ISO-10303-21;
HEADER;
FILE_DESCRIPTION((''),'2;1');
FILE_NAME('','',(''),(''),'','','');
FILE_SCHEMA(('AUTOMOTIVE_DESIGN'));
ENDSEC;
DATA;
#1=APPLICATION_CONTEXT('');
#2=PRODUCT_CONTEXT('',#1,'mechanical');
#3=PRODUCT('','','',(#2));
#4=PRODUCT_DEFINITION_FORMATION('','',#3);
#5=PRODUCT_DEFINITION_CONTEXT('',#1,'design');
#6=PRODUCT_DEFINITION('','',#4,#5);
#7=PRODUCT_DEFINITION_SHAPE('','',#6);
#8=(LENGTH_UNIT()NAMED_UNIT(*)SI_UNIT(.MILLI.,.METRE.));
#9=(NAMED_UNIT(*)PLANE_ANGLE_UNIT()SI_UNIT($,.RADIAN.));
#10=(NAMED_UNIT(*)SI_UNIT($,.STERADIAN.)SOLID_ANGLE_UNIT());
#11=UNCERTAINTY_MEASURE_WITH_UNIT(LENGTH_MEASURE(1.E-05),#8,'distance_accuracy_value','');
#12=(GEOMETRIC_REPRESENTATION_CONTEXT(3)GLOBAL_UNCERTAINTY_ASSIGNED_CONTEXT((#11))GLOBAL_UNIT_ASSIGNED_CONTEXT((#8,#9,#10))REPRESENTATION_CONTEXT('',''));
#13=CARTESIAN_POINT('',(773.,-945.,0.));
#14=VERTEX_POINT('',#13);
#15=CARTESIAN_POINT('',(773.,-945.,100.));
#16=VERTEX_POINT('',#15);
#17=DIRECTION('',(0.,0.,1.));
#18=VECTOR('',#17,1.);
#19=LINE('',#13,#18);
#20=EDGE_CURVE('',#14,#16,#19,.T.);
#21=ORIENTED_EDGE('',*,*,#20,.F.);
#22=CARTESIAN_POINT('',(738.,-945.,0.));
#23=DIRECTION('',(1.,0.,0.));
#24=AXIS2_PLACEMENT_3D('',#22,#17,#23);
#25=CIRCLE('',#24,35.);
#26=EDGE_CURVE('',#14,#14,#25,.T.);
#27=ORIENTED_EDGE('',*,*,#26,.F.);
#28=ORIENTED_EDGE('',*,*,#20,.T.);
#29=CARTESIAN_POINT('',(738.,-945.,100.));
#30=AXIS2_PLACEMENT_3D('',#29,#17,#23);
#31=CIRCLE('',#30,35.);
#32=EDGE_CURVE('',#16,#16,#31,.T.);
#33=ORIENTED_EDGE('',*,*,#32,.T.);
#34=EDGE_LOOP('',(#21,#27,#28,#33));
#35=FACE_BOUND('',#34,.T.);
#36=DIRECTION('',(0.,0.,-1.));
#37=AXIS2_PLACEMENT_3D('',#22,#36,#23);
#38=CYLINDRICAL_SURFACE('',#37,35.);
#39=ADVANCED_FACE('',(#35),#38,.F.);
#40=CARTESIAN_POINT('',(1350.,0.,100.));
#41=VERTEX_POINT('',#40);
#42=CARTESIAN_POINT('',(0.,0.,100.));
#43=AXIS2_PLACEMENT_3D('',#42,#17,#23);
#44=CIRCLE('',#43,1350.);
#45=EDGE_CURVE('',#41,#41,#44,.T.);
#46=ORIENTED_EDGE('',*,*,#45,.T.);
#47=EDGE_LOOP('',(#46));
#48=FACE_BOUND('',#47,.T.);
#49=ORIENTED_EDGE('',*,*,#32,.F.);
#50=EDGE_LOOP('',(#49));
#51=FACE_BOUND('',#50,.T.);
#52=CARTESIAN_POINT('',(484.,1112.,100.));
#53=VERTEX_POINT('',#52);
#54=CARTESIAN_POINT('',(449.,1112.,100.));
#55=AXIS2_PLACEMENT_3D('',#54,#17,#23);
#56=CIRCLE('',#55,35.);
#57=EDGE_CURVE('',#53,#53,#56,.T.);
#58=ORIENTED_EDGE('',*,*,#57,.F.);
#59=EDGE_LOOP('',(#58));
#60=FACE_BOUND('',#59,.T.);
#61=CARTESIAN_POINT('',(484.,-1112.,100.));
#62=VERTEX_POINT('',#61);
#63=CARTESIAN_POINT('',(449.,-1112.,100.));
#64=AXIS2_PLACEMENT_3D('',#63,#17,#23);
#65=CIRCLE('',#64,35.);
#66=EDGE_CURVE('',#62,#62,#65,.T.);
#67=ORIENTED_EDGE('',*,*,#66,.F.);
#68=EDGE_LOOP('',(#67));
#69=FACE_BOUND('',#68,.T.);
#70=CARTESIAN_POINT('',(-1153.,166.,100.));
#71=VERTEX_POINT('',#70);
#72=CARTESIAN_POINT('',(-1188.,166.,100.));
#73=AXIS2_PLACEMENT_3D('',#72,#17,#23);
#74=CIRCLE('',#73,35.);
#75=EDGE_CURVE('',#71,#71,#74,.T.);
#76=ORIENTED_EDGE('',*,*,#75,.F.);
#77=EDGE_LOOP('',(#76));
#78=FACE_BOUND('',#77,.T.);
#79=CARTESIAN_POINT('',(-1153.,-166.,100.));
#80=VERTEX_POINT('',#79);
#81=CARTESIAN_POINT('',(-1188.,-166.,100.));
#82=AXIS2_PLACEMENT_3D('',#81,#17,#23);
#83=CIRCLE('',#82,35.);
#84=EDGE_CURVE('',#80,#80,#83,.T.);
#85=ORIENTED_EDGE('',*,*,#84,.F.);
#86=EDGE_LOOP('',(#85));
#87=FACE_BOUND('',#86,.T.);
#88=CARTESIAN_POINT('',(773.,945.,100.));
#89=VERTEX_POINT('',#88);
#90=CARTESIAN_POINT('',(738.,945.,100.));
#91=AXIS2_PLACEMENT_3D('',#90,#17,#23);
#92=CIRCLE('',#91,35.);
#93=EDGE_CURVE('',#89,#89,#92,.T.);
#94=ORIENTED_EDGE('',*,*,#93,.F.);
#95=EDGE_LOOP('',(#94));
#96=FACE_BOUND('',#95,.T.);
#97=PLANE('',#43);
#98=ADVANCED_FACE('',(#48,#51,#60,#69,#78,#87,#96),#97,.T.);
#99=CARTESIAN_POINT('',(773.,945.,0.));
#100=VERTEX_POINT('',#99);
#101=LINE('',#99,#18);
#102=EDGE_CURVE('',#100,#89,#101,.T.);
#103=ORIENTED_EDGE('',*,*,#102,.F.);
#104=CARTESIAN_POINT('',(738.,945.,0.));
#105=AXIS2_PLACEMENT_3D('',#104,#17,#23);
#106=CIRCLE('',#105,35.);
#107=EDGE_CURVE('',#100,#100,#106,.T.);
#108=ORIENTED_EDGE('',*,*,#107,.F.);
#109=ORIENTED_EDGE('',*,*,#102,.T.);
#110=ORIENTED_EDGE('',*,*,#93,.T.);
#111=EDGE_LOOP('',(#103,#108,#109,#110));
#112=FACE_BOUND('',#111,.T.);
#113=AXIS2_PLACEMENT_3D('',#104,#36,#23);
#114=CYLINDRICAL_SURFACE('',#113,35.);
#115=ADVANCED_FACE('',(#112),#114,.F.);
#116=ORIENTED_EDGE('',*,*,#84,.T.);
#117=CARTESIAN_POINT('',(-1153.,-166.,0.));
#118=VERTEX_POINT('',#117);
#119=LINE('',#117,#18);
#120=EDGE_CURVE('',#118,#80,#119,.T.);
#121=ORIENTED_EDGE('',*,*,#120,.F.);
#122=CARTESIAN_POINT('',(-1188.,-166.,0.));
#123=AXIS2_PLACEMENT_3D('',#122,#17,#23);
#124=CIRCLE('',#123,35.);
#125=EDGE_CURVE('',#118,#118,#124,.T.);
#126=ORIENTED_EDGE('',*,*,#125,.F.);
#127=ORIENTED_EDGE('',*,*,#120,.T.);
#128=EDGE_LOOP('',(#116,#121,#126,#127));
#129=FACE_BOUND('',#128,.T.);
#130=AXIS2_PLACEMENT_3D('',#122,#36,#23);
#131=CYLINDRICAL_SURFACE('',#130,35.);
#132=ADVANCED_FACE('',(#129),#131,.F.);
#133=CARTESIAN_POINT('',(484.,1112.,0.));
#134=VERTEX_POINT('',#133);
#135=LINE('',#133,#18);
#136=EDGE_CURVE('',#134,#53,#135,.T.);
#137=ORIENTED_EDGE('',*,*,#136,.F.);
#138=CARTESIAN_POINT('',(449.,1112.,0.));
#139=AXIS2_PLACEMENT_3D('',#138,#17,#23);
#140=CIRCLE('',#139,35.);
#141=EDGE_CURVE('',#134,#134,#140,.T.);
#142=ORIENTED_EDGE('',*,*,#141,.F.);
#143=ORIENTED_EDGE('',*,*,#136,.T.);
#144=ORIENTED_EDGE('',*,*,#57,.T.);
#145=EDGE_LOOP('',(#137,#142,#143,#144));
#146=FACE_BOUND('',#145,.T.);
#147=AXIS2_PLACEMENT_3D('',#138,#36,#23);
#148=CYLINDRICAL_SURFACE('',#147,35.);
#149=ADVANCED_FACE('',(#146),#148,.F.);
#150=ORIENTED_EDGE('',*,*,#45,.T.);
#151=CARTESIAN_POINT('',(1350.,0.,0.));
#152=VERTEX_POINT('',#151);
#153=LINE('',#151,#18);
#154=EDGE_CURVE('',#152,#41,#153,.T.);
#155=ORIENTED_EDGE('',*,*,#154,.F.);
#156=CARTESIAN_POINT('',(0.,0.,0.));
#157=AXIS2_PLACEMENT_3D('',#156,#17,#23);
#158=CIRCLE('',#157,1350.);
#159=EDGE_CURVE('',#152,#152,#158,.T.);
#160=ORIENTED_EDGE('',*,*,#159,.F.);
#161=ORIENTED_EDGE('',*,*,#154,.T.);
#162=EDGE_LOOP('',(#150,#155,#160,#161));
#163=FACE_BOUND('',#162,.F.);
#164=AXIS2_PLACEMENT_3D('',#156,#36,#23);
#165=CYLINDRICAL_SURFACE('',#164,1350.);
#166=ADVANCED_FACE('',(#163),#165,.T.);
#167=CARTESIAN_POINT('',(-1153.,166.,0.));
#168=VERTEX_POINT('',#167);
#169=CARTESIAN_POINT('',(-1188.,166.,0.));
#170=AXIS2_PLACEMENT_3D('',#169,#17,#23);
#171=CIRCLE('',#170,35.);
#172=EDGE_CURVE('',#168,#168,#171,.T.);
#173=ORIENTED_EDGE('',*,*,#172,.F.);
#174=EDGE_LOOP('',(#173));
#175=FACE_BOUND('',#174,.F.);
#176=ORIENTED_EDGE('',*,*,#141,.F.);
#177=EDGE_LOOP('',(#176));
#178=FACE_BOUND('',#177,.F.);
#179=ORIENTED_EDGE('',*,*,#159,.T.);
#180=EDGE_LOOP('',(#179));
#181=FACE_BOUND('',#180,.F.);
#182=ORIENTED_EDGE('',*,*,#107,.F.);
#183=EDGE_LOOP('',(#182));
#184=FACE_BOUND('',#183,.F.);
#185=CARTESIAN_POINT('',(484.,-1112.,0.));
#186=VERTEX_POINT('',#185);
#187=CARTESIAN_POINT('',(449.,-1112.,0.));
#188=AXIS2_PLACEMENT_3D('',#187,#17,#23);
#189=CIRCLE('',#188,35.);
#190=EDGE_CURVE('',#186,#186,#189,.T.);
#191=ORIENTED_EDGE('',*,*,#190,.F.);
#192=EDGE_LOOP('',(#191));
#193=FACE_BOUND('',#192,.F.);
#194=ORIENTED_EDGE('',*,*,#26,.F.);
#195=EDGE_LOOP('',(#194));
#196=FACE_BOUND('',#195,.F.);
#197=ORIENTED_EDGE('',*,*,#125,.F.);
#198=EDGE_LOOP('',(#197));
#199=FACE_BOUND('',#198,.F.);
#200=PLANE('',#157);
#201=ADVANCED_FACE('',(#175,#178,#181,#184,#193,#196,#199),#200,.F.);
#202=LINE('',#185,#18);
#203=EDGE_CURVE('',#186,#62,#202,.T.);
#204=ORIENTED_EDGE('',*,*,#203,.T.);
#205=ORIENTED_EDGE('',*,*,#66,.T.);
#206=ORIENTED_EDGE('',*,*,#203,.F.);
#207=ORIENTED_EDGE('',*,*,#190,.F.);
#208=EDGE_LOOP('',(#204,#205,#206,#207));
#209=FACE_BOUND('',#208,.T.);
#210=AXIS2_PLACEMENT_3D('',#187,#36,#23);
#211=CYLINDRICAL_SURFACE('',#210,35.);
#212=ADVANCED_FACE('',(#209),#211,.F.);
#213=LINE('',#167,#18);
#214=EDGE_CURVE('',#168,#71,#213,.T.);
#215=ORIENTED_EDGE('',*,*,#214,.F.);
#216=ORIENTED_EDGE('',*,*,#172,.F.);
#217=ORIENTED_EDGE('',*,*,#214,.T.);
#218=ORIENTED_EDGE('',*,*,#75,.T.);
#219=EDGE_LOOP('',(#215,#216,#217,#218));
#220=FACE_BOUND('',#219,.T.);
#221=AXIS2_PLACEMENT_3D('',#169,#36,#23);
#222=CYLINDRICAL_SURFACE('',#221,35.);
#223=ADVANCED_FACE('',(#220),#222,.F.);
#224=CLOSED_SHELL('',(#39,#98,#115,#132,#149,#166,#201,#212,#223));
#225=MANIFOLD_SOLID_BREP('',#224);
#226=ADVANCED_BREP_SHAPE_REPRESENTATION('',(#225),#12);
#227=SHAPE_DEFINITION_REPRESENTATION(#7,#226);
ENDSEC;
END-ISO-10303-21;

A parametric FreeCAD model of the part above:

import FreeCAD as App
import Part
import Sketcher

V = App.Vector

doc = App.newDocument("Part")
params = doc.addObject("Spreadsheet::Sheet", "Params")
for row, (alias, value) in enumerate([
    ("sketch1_diameter", "2700 mm"),
    ("sketch1_diameter2", "70 mm"),
    ("pad1_length", "100 mm"),
], start=1):
    params.set(f"A{row}", alias)
    params.set(f"B{row}", "=" + value)
    params.setAlias(f"B{row}", alias)

body = doc.addObject("PartDesign::Body", "Body")

# Sketch on XY plane
sketch1 = doc.addObject("Sketcher::SketchObject", "Sketch")
body.addObject(sketch1)
sketch1.AttachmentSupport = (doc.XY_Plane, [""])
sketch1.MapMode = "FlatFace"
sketch1.addGeometry([
    Part.Circle(V(0, 0, 0), V(0, 0, 1), 1350),  # 0
    Part.Circle(V(-1188, -166, 0), V(0, 0, 1), 35),  # 1
    Part.Circle(V(449, -1112, 0), V(0, 0, 1), 35),  # 2
    Part.Circle(V(738, -945, 0), V(0, 0, 1), 35),  # 3
    Part.Circle(V(-1188, 166, 0), V(0, 0, 1), 35),  # 4
    Part.Circle(V(449, 1112, 0), V(0, 0, 1), 35),  # 5
    Part.Circle(V(738, 945, 0), V(0, 0, 1), 35),  # 6
], False)
sketch1.addConstraint([
    Sketcher.Constraint("Coincident", 0, 3, -1, 1),
    Sketcher.Constraint("Equal", 1, 2),
    Sketcher.Constraint("Equal", 2, 3),
    Sketcher.Constraint("Equal", 3, 4),
    Sketcher.Constraint("Equal", 4, 5),
    Sketcher.Constraint("Equal", 5, 6),
    Sketcher.Constraint("Symmetric", 1, 3, 4, 3, -1),
    Sketcher.Constraint("Symmetric", 2, 3, 5, 3, -1),
    Sketcher.Constraint("Symmetric", 3, 3, 6, 3, -1),
    Sketcher.Constraint("Diameter", 0, 2700.0),
    Sketcher.Constraint("Diameter", 1, 70.0),
    Sketcher.Constraint("DistanceX", 1, 3, -1, 1, 1188.0),
    Sketcher.Constraint("DistanceY", 1, 3, -1, 1, 166.0),
    Sketcher.Constraint("DistanceX", -1, 1, 2, 3, 449.0),
    Sketcher.Constraint("DistanceY", 2, 3, -1, 1, 1112.0),
    Sketcher.Constraint("DistanceX", -1, 1, 3, 3, 738.0),
    Sketcher.Constraint("DistanceY", 3, 3, -1, 1, 945.0),
])
sketch1.setExpression("Constraints[9]", "Params.sketch1_diameter")
sketch1.setExpression("Constraints[10]", "Params.sketch1_diameter2")
pad1 = doc.addObject("PartDesign::Pad", "Pad")
body.addObject(pad1)
pad1.Profile = sketch1
pad1.setExpression("Length", "Params.pad1_length")

doc.recompute()
